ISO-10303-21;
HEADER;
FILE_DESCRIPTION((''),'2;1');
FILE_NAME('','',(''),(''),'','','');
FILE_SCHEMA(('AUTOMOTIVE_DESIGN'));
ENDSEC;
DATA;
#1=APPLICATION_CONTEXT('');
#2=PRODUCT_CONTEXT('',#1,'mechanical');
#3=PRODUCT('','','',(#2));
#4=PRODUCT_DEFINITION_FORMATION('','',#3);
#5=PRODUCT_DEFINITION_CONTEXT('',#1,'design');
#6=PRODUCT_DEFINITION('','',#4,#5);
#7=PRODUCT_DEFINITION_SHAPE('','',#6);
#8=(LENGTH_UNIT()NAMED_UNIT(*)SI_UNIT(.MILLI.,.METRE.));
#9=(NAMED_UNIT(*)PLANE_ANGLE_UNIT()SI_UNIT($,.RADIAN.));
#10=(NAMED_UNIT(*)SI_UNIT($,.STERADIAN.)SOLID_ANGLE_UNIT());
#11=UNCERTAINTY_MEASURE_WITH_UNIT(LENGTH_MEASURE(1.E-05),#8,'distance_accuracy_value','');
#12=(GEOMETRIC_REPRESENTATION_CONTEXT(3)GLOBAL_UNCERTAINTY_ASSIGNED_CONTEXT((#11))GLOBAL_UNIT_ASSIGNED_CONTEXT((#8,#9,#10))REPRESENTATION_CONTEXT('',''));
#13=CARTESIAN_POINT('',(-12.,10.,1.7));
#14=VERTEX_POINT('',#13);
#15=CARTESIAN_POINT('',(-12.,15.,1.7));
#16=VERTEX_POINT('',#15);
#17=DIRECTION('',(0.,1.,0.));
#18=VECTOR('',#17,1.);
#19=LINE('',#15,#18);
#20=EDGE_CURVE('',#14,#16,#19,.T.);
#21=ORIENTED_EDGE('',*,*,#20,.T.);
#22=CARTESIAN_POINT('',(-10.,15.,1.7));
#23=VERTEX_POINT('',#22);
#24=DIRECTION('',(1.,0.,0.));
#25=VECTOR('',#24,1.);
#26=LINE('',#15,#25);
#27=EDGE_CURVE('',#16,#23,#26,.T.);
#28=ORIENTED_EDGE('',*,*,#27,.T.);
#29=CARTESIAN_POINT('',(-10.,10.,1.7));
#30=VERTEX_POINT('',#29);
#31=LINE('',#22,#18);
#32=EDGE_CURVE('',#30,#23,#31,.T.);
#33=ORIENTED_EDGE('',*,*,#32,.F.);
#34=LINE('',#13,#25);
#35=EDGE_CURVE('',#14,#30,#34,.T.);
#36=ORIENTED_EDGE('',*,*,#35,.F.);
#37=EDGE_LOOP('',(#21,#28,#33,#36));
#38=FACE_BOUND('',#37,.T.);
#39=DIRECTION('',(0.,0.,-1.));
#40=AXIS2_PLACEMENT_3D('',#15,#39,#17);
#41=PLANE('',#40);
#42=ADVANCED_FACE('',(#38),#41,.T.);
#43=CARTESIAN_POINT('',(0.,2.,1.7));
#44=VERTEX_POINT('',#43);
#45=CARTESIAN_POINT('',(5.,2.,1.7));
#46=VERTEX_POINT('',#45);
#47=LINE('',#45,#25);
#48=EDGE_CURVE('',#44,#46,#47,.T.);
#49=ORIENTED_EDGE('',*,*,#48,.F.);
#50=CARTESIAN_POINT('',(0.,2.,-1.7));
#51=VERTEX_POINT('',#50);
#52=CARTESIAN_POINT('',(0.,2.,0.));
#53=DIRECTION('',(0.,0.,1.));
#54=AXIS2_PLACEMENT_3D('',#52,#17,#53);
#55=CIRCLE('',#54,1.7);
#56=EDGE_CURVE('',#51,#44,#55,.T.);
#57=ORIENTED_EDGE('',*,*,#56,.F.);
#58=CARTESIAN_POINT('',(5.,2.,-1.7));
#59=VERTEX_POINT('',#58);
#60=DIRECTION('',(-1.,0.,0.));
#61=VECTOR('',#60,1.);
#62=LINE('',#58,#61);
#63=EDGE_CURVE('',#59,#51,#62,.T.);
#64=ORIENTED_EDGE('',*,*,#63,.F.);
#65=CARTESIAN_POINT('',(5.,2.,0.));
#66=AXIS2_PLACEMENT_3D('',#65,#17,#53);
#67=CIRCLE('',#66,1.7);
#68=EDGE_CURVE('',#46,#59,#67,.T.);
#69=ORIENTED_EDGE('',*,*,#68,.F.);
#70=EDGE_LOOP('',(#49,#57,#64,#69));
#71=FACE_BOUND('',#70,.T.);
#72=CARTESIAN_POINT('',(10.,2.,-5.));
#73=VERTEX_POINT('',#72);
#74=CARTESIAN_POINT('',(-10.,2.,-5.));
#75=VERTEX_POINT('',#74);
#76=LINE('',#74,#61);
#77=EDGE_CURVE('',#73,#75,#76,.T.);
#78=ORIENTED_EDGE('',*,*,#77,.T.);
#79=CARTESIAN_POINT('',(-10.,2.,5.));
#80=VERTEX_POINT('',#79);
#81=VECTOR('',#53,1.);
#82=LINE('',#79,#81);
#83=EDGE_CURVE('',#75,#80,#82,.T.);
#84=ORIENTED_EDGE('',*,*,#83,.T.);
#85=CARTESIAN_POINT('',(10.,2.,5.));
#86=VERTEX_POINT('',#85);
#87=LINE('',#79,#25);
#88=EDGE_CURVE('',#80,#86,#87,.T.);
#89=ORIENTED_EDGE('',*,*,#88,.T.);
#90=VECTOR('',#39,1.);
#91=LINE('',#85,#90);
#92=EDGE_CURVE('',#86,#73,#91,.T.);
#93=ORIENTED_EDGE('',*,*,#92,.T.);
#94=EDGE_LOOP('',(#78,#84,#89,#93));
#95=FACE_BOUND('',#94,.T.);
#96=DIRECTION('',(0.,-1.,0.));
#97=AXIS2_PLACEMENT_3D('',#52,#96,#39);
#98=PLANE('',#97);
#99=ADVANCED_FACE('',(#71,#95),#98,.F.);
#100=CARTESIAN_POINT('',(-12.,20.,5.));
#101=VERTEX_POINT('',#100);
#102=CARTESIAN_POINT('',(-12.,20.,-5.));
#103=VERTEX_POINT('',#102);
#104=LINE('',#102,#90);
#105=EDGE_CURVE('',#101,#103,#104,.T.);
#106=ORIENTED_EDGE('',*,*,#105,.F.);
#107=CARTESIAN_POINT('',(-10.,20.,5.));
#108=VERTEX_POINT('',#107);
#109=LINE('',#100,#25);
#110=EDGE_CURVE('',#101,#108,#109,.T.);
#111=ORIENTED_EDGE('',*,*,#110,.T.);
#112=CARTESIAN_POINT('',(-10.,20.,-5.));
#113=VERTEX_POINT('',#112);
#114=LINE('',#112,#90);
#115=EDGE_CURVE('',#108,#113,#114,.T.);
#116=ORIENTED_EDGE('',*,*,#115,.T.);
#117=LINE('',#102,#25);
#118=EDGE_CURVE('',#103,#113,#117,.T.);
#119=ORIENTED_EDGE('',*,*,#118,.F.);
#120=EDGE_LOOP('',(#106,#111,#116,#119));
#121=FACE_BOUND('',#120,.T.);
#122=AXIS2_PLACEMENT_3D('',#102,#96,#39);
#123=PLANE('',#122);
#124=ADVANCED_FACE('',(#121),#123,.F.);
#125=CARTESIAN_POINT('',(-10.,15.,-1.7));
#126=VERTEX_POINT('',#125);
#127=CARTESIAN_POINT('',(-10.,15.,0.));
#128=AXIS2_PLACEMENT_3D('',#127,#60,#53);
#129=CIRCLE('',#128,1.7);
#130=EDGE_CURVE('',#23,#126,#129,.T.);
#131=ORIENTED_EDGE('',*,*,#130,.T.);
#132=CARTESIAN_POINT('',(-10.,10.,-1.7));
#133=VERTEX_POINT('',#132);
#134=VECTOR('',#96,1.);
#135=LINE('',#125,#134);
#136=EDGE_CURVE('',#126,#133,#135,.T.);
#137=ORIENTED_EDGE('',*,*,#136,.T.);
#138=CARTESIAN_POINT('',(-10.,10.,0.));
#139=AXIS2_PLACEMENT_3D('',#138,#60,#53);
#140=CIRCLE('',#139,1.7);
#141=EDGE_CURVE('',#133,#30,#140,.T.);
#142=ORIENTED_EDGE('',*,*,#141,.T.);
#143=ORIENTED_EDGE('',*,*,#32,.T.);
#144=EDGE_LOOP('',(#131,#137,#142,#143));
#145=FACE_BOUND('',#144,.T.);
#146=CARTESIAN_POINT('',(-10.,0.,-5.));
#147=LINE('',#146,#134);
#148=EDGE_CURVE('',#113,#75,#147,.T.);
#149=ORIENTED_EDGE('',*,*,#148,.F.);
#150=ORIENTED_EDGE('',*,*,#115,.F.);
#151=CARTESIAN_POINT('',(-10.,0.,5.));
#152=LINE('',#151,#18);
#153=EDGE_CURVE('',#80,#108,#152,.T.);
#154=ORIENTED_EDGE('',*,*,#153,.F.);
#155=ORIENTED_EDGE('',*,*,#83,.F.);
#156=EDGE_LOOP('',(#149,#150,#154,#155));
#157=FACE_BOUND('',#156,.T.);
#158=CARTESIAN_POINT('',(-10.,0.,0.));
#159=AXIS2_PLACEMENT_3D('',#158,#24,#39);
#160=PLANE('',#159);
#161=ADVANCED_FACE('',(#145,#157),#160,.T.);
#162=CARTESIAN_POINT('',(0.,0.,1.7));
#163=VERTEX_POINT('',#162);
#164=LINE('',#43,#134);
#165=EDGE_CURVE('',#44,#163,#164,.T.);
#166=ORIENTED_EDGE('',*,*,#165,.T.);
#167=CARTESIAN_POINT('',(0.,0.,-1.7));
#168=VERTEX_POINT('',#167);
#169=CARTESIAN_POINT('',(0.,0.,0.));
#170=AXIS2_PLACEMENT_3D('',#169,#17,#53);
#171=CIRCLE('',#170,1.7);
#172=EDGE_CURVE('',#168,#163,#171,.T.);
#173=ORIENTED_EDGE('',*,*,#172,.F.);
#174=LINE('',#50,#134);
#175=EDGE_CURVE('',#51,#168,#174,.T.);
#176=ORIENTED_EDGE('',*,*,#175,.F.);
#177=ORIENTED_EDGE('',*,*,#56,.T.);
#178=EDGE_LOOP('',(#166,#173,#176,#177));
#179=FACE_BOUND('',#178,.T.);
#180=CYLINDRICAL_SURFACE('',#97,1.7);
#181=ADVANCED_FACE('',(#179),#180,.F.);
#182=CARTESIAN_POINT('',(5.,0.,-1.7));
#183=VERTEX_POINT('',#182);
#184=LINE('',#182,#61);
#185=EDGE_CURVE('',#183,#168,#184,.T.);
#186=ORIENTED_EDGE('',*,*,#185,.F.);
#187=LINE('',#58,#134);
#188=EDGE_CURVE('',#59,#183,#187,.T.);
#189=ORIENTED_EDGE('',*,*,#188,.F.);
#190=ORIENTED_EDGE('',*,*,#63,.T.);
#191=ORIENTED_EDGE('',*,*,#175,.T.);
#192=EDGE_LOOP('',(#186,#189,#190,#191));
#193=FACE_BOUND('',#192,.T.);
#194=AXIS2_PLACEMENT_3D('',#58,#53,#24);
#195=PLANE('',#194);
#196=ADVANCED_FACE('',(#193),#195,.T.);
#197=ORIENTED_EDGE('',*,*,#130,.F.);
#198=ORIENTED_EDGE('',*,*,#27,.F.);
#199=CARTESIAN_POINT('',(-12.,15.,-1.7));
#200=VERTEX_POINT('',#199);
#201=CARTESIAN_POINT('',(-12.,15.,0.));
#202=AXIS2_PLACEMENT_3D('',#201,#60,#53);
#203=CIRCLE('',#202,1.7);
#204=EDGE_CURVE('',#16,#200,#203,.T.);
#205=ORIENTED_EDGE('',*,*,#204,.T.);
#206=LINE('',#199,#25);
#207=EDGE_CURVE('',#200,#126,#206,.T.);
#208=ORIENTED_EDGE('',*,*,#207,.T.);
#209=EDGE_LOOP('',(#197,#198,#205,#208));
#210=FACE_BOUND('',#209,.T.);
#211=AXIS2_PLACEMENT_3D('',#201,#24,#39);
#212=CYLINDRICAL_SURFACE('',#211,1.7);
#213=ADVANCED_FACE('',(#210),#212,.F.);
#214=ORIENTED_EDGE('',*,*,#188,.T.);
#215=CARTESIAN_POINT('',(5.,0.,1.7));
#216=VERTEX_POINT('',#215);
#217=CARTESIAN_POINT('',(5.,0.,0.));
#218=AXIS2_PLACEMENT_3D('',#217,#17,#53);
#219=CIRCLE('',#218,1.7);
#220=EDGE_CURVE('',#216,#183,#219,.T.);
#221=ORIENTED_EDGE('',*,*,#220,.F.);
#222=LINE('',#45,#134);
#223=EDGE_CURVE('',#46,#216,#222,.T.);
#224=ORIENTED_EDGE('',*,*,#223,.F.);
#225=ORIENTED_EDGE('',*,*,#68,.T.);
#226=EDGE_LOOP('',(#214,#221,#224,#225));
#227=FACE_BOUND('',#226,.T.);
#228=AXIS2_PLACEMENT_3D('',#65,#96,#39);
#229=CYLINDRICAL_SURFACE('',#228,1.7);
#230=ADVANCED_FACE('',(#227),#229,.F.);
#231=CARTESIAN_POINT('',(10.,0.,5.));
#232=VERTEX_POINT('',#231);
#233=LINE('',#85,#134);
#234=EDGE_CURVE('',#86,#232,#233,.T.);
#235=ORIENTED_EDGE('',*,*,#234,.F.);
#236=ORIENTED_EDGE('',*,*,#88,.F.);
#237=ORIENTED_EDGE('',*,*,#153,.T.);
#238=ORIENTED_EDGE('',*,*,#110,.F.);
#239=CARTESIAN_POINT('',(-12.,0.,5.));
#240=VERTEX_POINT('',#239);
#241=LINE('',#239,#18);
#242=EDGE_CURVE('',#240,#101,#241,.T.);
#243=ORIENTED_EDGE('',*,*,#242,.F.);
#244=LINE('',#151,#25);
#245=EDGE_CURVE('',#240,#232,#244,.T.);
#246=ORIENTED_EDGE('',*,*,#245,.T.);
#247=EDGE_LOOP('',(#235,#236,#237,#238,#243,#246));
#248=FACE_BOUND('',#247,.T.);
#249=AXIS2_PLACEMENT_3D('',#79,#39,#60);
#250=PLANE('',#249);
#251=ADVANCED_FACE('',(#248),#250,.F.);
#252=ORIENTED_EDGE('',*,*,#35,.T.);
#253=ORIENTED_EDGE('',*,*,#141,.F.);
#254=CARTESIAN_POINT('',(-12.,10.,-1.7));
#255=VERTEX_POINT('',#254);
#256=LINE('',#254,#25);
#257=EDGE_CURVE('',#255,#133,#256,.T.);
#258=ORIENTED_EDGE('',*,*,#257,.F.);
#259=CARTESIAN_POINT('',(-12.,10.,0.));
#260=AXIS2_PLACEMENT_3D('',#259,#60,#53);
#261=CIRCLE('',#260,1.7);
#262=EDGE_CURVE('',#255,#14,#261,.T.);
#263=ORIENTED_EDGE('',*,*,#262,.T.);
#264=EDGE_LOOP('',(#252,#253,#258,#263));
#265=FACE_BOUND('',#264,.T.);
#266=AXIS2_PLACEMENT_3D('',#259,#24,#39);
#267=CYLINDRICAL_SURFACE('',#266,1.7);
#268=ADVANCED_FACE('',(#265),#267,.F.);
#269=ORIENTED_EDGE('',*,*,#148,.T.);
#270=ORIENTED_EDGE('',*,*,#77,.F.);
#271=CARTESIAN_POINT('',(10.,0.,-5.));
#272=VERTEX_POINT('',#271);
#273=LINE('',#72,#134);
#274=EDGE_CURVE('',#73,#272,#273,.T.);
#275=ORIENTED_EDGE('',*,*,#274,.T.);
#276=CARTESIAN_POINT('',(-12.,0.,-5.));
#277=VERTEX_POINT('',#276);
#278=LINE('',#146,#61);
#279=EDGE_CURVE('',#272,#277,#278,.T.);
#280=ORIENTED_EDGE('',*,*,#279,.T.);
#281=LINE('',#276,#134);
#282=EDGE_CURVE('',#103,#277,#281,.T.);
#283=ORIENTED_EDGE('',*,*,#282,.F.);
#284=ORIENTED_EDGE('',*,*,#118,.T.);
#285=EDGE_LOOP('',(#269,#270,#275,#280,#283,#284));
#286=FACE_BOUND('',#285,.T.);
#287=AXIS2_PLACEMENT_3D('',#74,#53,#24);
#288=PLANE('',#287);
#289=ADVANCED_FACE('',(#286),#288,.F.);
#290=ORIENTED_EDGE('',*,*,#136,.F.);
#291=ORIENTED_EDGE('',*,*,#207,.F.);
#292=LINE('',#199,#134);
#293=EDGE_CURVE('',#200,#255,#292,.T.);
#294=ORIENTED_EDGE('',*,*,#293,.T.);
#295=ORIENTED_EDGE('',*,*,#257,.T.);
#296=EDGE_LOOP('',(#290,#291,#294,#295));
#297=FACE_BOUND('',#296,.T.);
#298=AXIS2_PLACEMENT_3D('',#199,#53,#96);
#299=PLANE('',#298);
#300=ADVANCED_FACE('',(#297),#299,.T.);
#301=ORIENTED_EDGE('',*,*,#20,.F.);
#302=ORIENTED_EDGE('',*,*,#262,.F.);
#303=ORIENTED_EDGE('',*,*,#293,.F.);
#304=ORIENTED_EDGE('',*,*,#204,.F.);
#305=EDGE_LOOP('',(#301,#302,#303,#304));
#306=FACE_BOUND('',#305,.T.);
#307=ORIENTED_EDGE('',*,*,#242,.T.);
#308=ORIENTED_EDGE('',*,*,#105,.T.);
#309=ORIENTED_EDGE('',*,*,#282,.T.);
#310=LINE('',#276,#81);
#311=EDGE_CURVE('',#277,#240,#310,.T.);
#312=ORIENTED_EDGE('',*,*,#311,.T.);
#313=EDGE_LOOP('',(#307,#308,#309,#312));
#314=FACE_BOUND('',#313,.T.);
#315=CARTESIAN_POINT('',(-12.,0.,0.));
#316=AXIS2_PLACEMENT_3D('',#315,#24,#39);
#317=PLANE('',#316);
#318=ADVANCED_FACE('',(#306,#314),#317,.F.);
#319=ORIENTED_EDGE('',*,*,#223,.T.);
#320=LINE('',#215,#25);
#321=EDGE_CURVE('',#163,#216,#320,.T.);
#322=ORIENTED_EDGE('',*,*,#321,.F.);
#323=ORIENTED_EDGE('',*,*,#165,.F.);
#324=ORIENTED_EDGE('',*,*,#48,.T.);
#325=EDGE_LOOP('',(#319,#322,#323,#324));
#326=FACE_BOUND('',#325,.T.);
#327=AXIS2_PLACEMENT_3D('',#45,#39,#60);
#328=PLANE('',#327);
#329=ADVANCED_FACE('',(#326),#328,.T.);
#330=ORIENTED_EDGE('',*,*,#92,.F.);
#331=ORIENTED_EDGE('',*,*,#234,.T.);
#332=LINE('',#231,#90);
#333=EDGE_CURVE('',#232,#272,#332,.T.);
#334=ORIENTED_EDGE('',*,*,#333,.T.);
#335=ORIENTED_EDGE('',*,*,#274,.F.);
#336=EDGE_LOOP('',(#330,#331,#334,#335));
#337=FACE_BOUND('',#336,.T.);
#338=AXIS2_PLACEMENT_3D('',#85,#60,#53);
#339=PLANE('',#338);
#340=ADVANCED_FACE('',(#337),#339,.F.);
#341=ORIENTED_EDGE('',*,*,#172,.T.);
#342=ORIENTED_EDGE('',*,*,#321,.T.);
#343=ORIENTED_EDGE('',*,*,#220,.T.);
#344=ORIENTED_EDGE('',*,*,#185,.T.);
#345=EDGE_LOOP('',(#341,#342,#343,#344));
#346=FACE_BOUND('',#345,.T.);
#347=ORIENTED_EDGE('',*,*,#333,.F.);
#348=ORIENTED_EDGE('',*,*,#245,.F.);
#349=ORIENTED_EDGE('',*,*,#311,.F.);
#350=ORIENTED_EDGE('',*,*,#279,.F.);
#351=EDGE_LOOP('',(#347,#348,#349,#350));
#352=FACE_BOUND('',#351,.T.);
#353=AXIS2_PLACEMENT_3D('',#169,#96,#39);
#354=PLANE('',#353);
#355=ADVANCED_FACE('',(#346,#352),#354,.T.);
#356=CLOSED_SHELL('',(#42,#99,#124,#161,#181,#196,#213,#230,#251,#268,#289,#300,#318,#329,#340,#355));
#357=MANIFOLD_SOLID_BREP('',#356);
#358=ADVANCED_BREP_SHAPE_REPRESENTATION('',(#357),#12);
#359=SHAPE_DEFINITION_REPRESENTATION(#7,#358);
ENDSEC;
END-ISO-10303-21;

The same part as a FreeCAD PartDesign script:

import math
import FreeCAD as App
import Part
import Sketcher
from FreeCAD import Vector

doc = App.newDocument("Part")
body = doc.addObject("PartDesign::Body", "Body")

# Sketch on XZ plane
sketch1 = body.newObject("Sketcher::SketchObject", "Sketch")
sketch1.AttachmentSupport = (doc.getObject("XZ_Plane"), [""])
sketch1.MapMode = "FlatFace"
sketch1.addGeometry(Part.LineSegment(Vector(-10, -5, 0), Vector(-10, 5, 0)), False)
sketch1.addGeometry(Part.LineSegment(Vector(-10, 5, 0), Vector(10, 5, 0)), False)
sketch1.addGeometry(Part.LineSegment(Vector(10, 5, 0), Vector(10, -5, 0)), False)
sketch1.addGeometry(Part.LineSegment(Vector(10, -5, 0), Vector(-10, -5, 0)), False)
sketch1.addGeometry(Part.ArcOfCircle(Part.Circle(Vector(5, 0, 0), Vector(0, 0, 1), 1.7), math.radians(-90), math.radians(90)), False)
sketch1.addGeometry(Part.LineSegment(Vector(5, 1.7, 0), Vector(0, 1.7, 0)), False)
sketch1.addGeometry(Part.ArcOfCircle(Part.Circle(Vector(0, 0, 0), Vector(0, 0, 1), 1.7), math.radians(90), math.radians(270)), False)
sketch1.addGeometry(Part.LineSegment(Vector(0, -1.7, 0), Vector(5, -1.7, 0)), False)
sketch1.addConstraint(Sketcher.Constraint("Coincident", 0, 2, 1, 1))
sketch1.addConstraint(Sketcher.Constraint("Coincident", 1, 2, 2, 1))
sketch1.addConstraint(Sketcher.Constraint("Coincident", 2, 2, 3, 1))
sketch1.addConstraint(Sketcher.Constraint("Coincident", 3, 2, 0, 1))
sketch1.addConstraint(Sketcher.Constraint("Tangent", 4, 2, 5, 1))
sketch1.addConstraint(Sketcher.Constraint("Tangent", 5, 2, 6, 1))
sketch1.addConstraint(Sketcher.Constraint("Tangent", 6, 2, 7, 1))
sketch1.addConstraint(Sketcher.Constraint("Tangent", 7, 2, 4, 1))
sketch1.addConstraint(Sketcher.Constraint("Vertical", 0))
sketch1.addConstraint(Sketcher.Constraint("Horizontal", 1))
sketch1.addConstraint(Sketcher.Constraint("Vertical", 2))
sketch1.addConstraint(Sketcher.Constraint("Horizontal", 3))
sketch1.addConstraint(Sketcher.Constraint("Horizontal", 5))
sketch1.addConstraint(Sketcher.Constraint("Horizontal", 7))
sketch1.addConstraint(Sketcher.Constraint("Coincident", 6, 3, -1, 1))
sketch1.addConstraint(Sketcher.Constraint("Symmetric", 0, 2, 2, 2, -1, 1))
sketch1.addConstraint(Sketcher.Constraint("Radius", 4, 1.7))
sketch1.addConstraint(Sketcher.Constraint("DistanceX", 1, 1, 1, 2, 20.0))
sketch1.addConstraint(Sketcher.Constraint("DistanceX", 5, 2, 5, 1, 5.0))
sketch1.addConstraint(Sketcher.Constraint("DistanceY", 0, 1, 0, 2, 10.0))
pad1 = body.newObject("PartDesign::Pad", "Pad")
pad1.Profile = sketch1
pad1.Length = 2
pad1.Reversed = True

# Sketch on YZ plane
sketch2 = body.newObject("Sketcher::SketchObject", "Sketch001")
sketch2.AttachmentSupport = (doc.getObject("YZ_Plane"), [""])
sketch2.MapMode = "FlatFace"
sketch2.AttachmentOffset = App.Placement(Vector(0, 0, -10), App.Rotation())
sketch2.addGeometry(Part.LineSegment(Vector(20, -5, 0), Vector(0, -5, 0)), False)
sketch2.addGeometry(Part.LineSegment(Vector(0, -5, 0), Vector(0, 5, 0)), False)
sketch2.addGeometry(Part.LineSegment(Vector(0, 5, 0), Vector(20, 5, 0)), False)
sketch2.addGeometry(Part.LineSegment(Vector(20, 5, 0), Vector(20, -5, 0)), False)
sketch2.addGeometry(Part.ArcOfCircle(Part.Circle(Vector(15, 0, 0), Vector(0, 0, 1), 1.7), math.radians(-90), math.radians(90)), False)
sketch2.addGeometry(Part.LineSegment(Vector(15, 1.7, 0), Vector(10, 1.7, 0)), False)
sketch2.addGeometry(Part.ArcOfCircle(Part.Circle(Vector(10, 0, 0), Vector(0, 0, 1), 1.7), math.radians(90), math.radians(270)), False)
sketch2.addGeometry(Part.LineSegment(Vector(10, -1.7, 0), Vector(15, -1.7, 0)), False)
sketch2.addConstraint(Sketcher.Constraint("Coincident", 0, 2, 1, 1))
sketch2.addConstraint(Sketcher.Constraint("Coincident", 1, 2, 2, 1))
sketch2.addConstraint(Sketcher.Constraint("Coincident", 2, 2, 3, 1))
sketch2.addConstraint(Sketcher.Constraint("Coincident", 3, 2, 0, 1))
sketch2.addConstraint(Sketcher.Constraint("Tangent", 4, 2, 5, 1))
sketch2.addConstraint(Sketcher.Constraint("Tangent", 5, 2, 6, 1))
sketch2.addConstraint(Sketcher.Constraint("Tangent", 6, 2, 7, 1))
sketch2.addConstraint(Sketcher.Constraint("Tangent", 7, 2, 4, 1))
sketch2.addConstraint(Sketcher.Constraint("Horizontal", 0))
sketch2.addConstraint(Sketcher.Constraint("Vertical", 1))
sketch2.addConstraint(Sketcher.Constraint("Horizontal", 2))
sketch2.addConstraint(Sketcher.Constraint("Vertical", 3))
sketch2.addConstraint(Sketcher.Constraint("Horizontal", 5))
sketch2.addConstraint(Sketcher.Constraint("Horizontal", 7))
sketch2.addConstraint(Sketcher.Constraint("Symmetric", 0, 2, 1, 2, -1, 1))
sketch2.addConstraint(Sketcher.Constraint("PointOnObject", 4, 3, -1))
sketch2.addConstraint(Sketcher.Constraint("Radius", 4, 1.7))
sketch2.addConstraint(Sketcher.Constraint("DistanceX", 0, 2, 0, 1, 20.0))
sketch2.addConstraint(Sketcher.Constraint("DistanceX", 5, 2, 5, 1, 5.0))
sketch2.addConstraint(Sketcher.Constraint("DistanceY", 1, 1, 1, 2, 10.0))
sketch2.addConstraint(Sketcher.Constraint("DistanceX", -1, 1, 4, 3, 15.0))
pad2 = body.newObject("PartDesign::Pad", "Pad001")
pad2.Profile = sketch2
pad2.Length = 2
pad2.Reversed = True

doc.recompute()
